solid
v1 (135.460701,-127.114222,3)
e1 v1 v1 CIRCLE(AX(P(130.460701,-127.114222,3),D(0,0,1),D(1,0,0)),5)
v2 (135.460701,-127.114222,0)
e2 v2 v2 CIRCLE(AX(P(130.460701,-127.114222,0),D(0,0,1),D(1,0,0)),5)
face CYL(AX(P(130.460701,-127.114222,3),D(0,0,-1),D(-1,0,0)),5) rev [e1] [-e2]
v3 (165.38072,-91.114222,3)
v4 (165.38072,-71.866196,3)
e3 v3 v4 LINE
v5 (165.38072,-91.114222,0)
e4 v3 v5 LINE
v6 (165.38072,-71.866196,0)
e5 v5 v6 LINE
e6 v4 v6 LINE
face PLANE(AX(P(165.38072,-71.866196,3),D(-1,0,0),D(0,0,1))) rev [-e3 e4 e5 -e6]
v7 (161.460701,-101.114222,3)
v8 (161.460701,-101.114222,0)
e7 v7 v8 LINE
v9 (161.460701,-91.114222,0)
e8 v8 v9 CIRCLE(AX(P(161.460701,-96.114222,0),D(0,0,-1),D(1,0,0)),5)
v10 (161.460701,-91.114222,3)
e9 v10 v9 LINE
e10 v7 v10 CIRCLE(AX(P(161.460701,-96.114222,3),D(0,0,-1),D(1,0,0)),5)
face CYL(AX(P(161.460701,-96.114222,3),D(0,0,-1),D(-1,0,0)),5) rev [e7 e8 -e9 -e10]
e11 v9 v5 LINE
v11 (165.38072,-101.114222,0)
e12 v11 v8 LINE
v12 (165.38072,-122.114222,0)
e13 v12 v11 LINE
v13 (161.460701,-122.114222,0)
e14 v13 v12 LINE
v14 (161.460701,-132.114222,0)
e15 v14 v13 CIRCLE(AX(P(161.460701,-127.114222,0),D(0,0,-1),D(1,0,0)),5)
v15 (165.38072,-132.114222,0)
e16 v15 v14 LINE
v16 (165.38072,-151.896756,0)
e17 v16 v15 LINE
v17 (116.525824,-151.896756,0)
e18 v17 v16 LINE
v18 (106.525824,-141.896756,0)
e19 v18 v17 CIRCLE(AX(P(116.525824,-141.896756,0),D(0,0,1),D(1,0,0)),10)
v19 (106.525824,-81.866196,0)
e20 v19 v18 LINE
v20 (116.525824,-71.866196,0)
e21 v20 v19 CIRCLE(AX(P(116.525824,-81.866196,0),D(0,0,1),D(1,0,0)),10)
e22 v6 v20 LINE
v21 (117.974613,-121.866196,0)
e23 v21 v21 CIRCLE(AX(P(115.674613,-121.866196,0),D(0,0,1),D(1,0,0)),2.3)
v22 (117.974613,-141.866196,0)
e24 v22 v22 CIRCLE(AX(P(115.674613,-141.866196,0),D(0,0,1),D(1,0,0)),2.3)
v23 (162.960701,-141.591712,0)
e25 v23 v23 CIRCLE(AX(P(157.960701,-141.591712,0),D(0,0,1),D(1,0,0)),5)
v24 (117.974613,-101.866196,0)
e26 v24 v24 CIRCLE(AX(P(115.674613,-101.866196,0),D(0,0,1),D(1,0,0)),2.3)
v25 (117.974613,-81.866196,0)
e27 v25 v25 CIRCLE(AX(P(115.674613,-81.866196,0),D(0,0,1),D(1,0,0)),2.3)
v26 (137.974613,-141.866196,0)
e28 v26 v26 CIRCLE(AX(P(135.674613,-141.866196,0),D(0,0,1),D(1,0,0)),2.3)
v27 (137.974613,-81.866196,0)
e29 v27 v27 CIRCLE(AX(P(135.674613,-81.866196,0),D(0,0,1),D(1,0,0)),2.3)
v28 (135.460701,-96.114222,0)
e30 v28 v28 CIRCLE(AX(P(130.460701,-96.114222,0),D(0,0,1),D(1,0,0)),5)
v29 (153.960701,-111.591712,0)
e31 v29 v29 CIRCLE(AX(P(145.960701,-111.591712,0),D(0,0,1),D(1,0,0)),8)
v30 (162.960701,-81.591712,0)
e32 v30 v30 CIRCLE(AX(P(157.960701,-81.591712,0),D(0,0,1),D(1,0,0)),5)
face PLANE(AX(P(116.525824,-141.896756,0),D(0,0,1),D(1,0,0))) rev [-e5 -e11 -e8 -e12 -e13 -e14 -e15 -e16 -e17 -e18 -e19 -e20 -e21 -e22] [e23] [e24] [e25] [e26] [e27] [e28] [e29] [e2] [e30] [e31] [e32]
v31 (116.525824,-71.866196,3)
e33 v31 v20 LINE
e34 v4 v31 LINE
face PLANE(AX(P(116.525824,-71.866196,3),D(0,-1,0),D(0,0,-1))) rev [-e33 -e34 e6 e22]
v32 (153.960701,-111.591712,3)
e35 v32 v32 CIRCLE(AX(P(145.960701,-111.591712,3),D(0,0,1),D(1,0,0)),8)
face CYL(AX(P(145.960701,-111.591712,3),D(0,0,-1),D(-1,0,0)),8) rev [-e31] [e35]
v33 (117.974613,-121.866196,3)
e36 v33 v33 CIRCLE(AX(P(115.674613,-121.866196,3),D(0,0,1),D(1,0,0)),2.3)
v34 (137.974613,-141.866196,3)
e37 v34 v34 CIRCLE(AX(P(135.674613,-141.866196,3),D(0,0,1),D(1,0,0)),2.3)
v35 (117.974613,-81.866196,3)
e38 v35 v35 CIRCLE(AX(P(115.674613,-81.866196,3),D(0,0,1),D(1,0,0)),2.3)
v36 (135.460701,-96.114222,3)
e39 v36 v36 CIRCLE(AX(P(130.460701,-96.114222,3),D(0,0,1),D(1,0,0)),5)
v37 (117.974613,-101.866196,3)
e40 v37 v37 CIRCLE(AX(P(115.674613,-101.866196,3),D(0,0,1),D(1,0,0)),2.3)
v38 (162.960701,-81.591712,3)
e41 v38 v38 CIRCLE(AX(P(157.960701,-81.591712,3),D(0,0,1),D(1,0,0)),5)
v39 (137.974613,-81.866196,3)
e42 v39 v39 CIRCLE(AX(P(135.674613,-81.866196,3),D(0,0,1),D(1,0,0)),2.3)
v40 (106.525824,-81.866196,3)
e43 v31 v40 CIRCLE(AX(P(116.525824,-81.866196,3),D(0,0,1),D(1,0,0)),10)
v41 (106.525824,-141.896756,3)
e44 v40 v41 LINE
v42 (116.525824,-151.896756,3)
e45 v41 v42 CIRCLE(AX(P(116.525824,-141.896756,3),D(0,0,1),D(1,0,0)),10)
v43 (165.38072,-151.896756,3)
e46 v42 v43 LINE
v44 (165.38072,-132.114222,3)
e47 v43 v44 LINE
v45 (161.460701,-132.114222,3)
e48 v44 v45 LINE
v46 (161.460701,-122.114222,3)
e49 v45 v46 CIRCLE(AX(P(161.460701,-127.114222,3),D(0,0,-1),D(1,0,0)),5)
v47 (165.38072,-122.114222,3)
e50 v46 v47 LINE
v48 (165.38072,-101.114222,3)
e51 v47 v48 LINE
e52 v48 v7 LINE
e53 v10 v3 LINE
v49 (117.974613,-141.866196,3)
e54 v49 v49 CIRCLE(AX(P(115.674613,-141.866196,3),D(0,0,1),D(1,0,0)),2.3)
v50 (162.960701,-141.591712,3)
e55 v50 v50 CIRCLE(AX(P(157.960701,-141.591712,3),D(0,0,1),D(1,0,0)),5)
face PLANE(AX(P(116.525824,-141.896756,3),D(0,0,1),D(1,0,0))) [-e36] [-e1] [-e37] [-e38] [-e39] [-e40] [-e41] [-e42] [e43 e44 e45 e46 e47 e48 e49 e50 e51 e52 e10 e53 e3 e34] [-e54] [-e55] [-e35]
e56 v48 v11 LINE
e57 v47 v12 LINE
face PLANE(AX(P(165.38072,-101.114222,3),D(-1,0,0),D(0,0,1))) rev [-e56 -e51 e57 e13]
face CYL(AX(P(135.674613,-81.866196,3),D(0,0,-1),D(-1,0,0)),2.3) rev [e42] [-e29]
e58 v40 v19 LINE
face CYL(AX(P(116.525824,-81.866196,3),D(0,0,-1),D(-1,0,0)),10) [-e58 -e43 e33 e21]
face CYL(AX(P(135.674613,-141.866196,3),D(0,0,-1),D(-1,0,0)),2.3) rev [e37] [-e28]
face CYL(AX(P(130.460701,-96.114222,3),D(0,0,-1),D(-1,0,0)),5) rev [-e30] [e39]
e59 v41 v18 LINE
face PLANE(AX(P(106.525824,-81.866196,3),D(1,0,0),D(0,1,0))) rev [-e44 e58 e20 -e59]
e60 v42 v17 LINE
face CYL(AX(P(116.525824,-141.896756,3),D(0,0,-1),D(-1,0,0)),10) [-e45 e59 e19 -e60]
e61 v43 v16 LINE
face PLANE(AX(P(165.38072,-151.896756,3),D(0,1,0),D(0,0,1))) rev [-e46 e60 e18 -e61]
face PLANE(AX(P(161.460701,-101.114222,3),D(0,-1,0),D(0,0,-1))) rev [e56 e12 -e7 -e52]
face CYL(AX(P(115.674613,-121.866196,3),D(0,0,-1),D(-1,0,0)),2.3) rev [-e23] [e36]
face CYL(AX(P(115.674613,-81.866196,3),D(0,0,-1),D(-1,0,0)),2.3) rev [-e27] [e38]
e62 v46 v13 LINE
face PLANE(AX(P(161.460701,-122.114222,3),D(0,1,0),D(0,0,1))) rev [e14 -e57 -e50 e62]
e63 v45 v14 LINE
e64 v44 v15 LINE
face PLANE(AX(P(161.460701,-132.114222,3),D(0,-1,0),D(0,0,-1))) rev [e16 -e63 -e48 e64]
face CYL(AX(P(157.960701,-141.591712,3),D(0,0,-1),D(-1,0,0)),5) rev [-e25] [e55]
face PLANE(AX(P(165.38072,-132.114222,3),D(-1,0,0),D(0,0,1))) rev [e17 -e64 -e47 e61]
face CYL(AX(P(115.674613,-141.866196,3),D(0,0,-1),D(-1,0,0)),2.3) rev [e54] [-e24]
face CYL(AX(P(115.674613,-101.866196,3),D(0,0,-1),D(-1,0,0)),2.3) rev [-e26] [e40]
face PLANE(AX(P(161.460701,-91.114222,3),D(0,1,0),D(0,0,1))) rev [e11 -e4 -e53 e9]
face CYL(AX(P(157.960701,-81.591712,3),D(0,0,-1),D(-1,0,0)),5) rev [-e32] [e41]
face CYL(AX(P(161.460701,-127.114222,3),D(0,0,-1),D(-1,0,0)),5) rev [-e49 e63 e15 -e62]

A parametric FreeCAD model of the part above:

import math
import FreeCAD as App
import Part
import Sketcher

V = App.Vector
Q = App.Units.Quantity

doc = App.newDocument("Part")
body = doc.addObject("PartDesign::Body", "Body")

# Sketch on XY plane
sketch1 = body.newObject("Sketcher::SketchObject", "Sketch")
sketch1.AttachmentSupport = (doc.getObject("XY_Plane"), [""])
sketch1.MapMode = "FlatFace"
sketch1.addGeometry([
    Part.LineSegment(V(165.38072, -91.114222, 0), V(165.38072, -71.866196, 0)),  # 0
    Part.LineSegment(V(165.38072, -71.866196, 0), V(116.525824, -71.866196, 0)),  # 1
    Part.ArcOfCircle(Part.Circle(V(116.525824, -81.866196, 0), V(0, 0, 1), 10), math.radians(90), math.radians(180)),  # 2
    Part.LineSegment(V(106.525824, -81.866196, 0), V(106.525824, -141.896756, 0)),  # 3
    Part.ArcOfCircle(Part.Circle(V(116.525824, -141.896756, 0), V(0, 0, 1), 10), math.radians(180), math.radians(270)),  # 4
    Part.LineSegment(V(116.525824, -151.896756, 0), V(165.38072, -151.896756, 0)),  # 5
    Part.LineSegment(V(165.38072, -151.896756, 0), V(165.38072, -132.114222, 0)),  # 6
    Part.LineSegment(V(165.38072, -132.114222, 0), V(161.460701, -132.114222, 0)),  # 7
    Part.ArcOfCircle(Part.Circle(V(161.460701, -127.114222, 0), V(0, 0, 1), 5), math.radians(90), math.radians(270)),  # 8
    Part.LineSegment(V(161.460701, -122.114222, 0), V(165.38072, -122.114222, 0)),  # 9
    Part.LineSegment(V(165.38072, -122.114222, 0), V(165.38072, -101.114222, 0)),  # 10
    Part.LineSegment(V(165.38072, -101.114222, 0), V(161.460701, -101.114222, 0)),  # 11
    Part.ArcOfCircle(Part.Circle(V(161.460701, -96.114222, 0), V(0, 0, 1), 5), math.radians(90), math.radians(270)),  # 12
    Part.LineSegment(V(161.460701, -91.114222, 0), V(165.38072, -91.114222, 0)),  # 13
    Part.Circle(V(157.960701, -141.591712, 0), V(0, 0, 1), 5),  # 14
    Part.Circle(V(145.960701, -111.591712, 0), V(0, 0, 1), 8),  # 15
    Part.Circle(V(135.674613, -141.866196, 0), V(0, 0, 1), 2.3),  # 16
    Part.Circle(V(115.674613, -141.866196, 0), V(0, 0, 1), 2.3),  # 17
    Part.Circle(V(130.460701, -127.114222, 0), V(0, 0, 1), 5),  # 18
    Part.Circle(V(115.674613, -121.866196, 0), V(0, 0, 1), 2.3),  # 19
    Part.Circle(V(157.960701, -81.591712, 0), V(0, 0, 1), 5),  # 20
    Part.Circle(V(130.460701, -96.114222, 0), V(0, 0, 1), 5),  # 21
    Part.Circle(V(115.674613, -101.866196, 0), V(0, 0, 1), 2.3),  # 22
    Part.Circle(V(135.674613, -81.866196, 0), V(0, 0, 1), 2.3),  # 23
    Part.Circle(V(115.674613, -81.866196, 0), V(0, 0, 1), 2.3),  # 24
], False)
sketch1.addConstraint([
    Sketcher.Constraint("Coincident", 0, 2, 1, 1),
    Sketcher.Constraint("Tangent", 1, 2, 2, 1),
    Sketcher.Constraint("Tangent", 2, 2, 3, 1),
    Sketcher.Constraint("Tangent", 3, 2, 4, 1),
    Sketcher.Constraint("Tangent", 4, 2, 5, 1),
    Sketcher.Constraint("Coincident", 5, 2, 6, 1),
    Sketcher.Constraint("Coincident", 6, 2, 7, 1),
    Sketcher.Constraint("Tangent", 7, 2, 8, 2),
    Sketcher.Constraint("Tangent", 8, 1, 9, 1),
    Sketcher.Constraint("Coincident", 9, 2, 10, 1),
    Sketcher.Constraint("Coincident", 10, 2, 11, 1),
    Sketcher.Constraint("Tangent", 11, 2, 12, 2),
    Sketcher.Constraint("Tangent", 12, 1, 13, 1),
    Sketcher.Constraint("Coincident", 13, 2, 0, 1),
    Sketcher.Constraint("Vertical", 0),
    Sketcher.Constraint("Horizontal", 1),
    Sketcher.Constraint("Vertical", 3),
    Sketcher.Constraint("Horizontal", 5),
    Sketcher.Constraint("Vertical", 6),
    Sketcher.Constraint("Horizontal", 7),
    Sketcher.Constraint("Horizontal", 9),
    Sketcher.Constraint("Vertical", 10),
    Sketcher.Constraint("Horizontal", 11),
    Sketcher.Constraint("Horizontal", 13),
    Sketcher.Constraint("Equal", 2, 4),
    Sketcher.Constraint("Equal", 8, 12),
    Sketcher.Constraint("Equal", 12, 14),
    Sketcher.Constraint("Equal", 16, 17),
    Sketcher.Constraint("Equal", 14, 18),
    Sketcher.Constraint("Equal", 17, 19),
    Sketcher.Constraint("Equal", 18, 20),
    Sketcher.Constraint("Equal", 20, 21),
    Sketcher.Constraint("Equal", 19, 22),
    Sketcher.Constraint("Equal", 22, 23),
    Sketcher.Constraint("Equal", 23, 24),
    Sketcher.Constraint("Horizontal", 16, 3, 17, 3),
    Sketcher.Constraint("Horizontal", 8, 3, 18, 3),
    Sketcher.Constraint("Horizontal", 12, 3, 21, 3),
    Sketcher.Constraint("Horizontal", 2, 3, 23, 3),
    Sketcher.Constraint("Horizontal", 23, 3, 24, 3),
    Sketcher.Constraint("Vertical", 8, 3, 12, 3),
    Sketcher.Constraint("Vertical", 17, 3, 19, 3),
    Sketcher.Constraint("Vertical", 14, 3, 20, 3),
    Sketcher.Constraint("Vertical", 18, 3, 21, 3),
    Sketcher.Constraint("Vertical", 19, 3, 22, 3),
    Sketcher.Constraint("Vertical", 16, 3, 23, 3),
    Sketcher.Constraint("Vertical", 22, 3, 24, 3),
    Sketcher.Constraint("Vertical", 0, 2, 5, 2),
    Sketcher.Constraint("Vertical", 6, 2, 9, 2),
    Sketcher.Constraint("Diameter", 14, Q("10 mm")),
    Sketcher.Constraint("Diameter", 15, Q("16 mm")),
    Sketcher.Constraint("Radius", 2, Q("10 mm")),
    Sketcher.Constraint("Diameter", 16, Q("4.6 mm")),
    Sketcher.Constraint("DistanceY", 10, 1, 10, 2, Q("21 mm")),
    Sketcher.Constraint("DistanceX", 15, 3, 14, 3, Q("12 mm")),
    Sketcher.Constraint("DistanceY", 14, 3, 15, 3, Q("30 mm")),
    Sketcher.Constraint("DistanceX", 17, 3, 16, 3, Q("20 mm")),
    Sketcher.Constraint("DistanceX", 18, 3, 8, 3, Q("31 mm")),
    Sketcher.Constraint("DistanceY", 17, 3, 19, 3, Q("20 mm")),
    Sketcher.Constraint("DistanceY", 15, 3, 20, 3, Q("30 mm")),
    Sketcher.Constraint("DistanceY", 19, 3, 22, 3, Q("20 mm")),
    Sketcher.Constraint("DistanceY", 22, 3, 2, 3, Q("20 mm")),
    Sketcher.Constraint("DistanceX", 14, 3, 8, 3, Q("3.5 mm")),
    Sketcher.Constraint("DistanceX", 7, 2, 7, 1, Q("3.92002 mm")),
    Sketcher.Constraint("DistanceY", 3, 2, 3, 1, Q("60.03056 mm")),
    Sketcher.Constraint("DistanceX", -1, 1, 8, 3, Q("161.460701 mm")),
    Sketcher.Constraint("DistanceX", 1, 2, 1, 1, Q("48.854897 mm")),
    Sketcher.Constraint("DistanceY", 0, 1, 0, 2, Q("19.248026 mm")),
    Sketcher.Constraint("DistanceY", 8, 3, -1, 1, Q("127.114222 mm")),
    Sketcher.Constraint("DistanceY", 14, 3, 8, 3, Q("14.47749 mm")),
    Sketcher.Constraint("DistanceX", 4, 3, 16, 3, Q("19.148789 mm")),
])
pad1 = body.newObject("PartDesign::Pad", "Pad")
pad1.Profile = sketch1
pad1.Length = 3

doc.recompute()
